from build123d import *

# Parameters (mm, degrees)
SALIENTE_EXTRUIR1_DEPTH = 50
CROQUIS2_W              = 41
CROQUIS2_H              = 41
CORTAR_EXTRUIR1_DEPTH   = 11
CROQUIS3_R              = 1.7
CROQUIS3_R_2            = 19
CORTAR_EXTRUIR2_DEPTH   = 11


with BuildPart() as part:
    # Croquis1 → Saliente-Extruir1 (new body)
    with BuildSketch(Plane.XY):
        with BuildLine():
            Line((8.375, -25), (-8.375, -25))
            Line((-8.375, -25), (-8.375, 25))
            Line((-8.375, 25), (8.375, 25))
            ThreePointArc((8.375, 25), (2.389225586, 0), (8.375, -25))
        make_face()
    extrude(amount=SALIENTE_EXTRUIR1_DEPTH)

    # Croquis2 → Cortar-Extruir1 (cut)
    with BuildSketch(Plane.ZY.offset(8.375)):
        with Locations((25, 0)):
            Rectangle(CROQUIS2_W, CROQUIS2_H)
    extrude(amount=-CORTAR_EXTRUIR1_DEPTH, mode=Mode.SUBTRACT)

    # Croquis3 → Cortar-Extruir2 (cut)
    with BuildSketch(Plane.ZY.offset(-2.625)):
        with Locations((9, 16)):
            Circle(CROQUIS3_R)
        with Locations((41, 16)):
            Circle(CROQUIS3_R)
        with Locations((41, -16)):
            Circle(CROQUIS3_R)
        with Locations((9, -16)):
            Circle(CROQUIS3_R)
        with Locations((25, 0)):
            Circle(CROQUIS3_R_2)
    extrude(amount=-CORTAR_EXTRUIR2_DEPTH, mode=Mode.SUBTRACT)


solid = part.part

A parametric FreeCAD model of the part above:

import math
import FreeCAD as App
import Part
import Sketcher
from FreeCAD import Vector

doc = App.newDocument("Part")
body = doc.addObject("PartDesign::Body", "Body")

sketch1 = body.newObject("Sketcher::SketchObject", "Sketch")
sketch1.AttachmentSupport = (doc.getObject("XY_Plane"), [""])
sketch1.MapMode = "FlatFace"
sketch1.addGeometry(Part.LineSegment(Vector(-8.375, -25, 0), Vector(8.375, -25, 0)), False)
sketch1.addGeometry(Part.ArcOfCircle(Part.Circle(Vector(57.589226, 0, 0), Vector(0, 0, 1), 55.2), math.radians(153.070195), math.radians(206.929805)), False)
sketch1.addGeometry(Part.LineSegment(Vector(8.375, 25, 0), Vector(-8.375, 25, 0)), False)
sketch1.addGeometry(Part.LineSegment(Vector(-8.375, 25, 0), Vector(-8.375, -25, 0)), False)
sketch1.addConstraint(Sketcher.Constraint("Coincident", 0, 2, 1, 2))
sketch1.addConstraint(Sketcher.Constraint("Coincident", 1, 1, 2, 1))
sketch1.addConstraint(Sketcher.Constraint("Coincident", 2, 2, 3, 1))
sketch1.addConstraint(Sketcher.Constraint("Coincident", 3, 2, 0, 1))
sketch1.addConstraint(Sketcher.Constraint("Horizontal", 0))
sketch1.addConstraint(Sketcher.Constraint("Horizontal", 2))
sketch1.addConstraint(Sketcher.Constraint("Vertical", 3))
sketch1.addConstraint(Sketcher.Constraint("Symmetric", 0, 2, 2, 2, -1, 1))
sketch1.addConstraint(Sketcher.Constraint("PointOnObject", 1, 3, -1))
sketch1.addConstraint(Sketcher.Constraint("Radius", 1, 55.2))
sketch1.addConstraint(Sketcher.Constraint("DistanceY", 3, 2, 3, 1, 50.0))
sketch1.addConstraint(Sketcher.Constraint("DistanceX", 0, 1, 0, 2, 16.75))
pad1 = body.newObject("PartDesign::Pad", "Pad")
pad1.Profile = sketch1
pad1.Length = 50

sketch2 = body.newObject("Sketcher::SketchObject", "Sketch001")
sketch2.AttachmentSupport = (doc.getObject("YZ_Plane"), [""])
sketch2.MapMode = "FlatFace"
sketch2.AttachmentOffset = App.Placement(Vector(0, 0, -8.375), App.Rotation())
sketch2.addGeometry(Part.LineSegment(Vector(20.5, 4.5, 0), Vector(-20.5, 4.5, 0)), False)
sketch2.addGeometry(Part.LineSegment(Vector(-20.5, 4.5, 0), Vector(-20.5, 45.5, 0)), False)
sketch2.addGeometry(Part.LineSegment(Vector(-20.5, 45.5, 0), Vector(20.5, 45.5, 0)), False)
sketch2.addGeometry(Part.LineSegment(Vector(20.5, 45.5, 0), Vector(20.5, 4.5, 0)), False)
sketch2.addConstraint(Sketcher.Constraint("Coincident", 0, 2, 1, 1))
sketch2.addConstraint(Sketcher.Constraint("Coincident", 1, 2, 2, 1))
sketch2.addConstraint(Sketcher.Constraint("Coincident", 2, 2, 3, 1))
sketch2.addConstraint(Sketcher.Constraint("Coincident", 3, 2, 0, 1))
sketch2.addConstraint(Sketcher.Constraint("Horizontal", 0))
sketch2.addConstraint(Sketcher.Constraint("Vertical", 1))
sketch2.addConstraint(Sketcher.Constraint("Horizontal", 2))
sketch2.addConstraint(Sketcher.Constraint("Vertical", 3))
sketch2.addConstraint(Sketcher.Constraint("Equal", 2, 1))
sketch2.addConstraint(Sketcher.Constraint("DistanceX", 0, 2, 0, 1, 41.0))
sketch2.addConstraint(Sketcher.Constraint("DistanceX", 0, 2, -1, 1, 20.5))
sketch2.addConstraint(Sketcher.Constraint("DistanceY", -1, 1, 0, 2, 4.5))
pocket1 = body.newObject("PartDesign::Pocket", "Pocket")
pocket1.Profile = sketch2
pocket1.Length = 11
pocket1.Reversed = True

sketch3 = body.newObject("Sketcher::SketchObject", "Sketch002")
sketch3.AttachmentSupport = (doc.getObject("YZ_Plane"), [""])
sketch3.MapMode = "FlatFace"
sketch3.AttachmentOffset = App.Placement(Vector(0, 0, 2.625), App.Rotation())
sketch3.addGeometry(Part.Circle(Vector(16, 9, 0), Vector(0, 0, 1), 1.7), False)
sketch3.addGeometry(Part.Circle(Vector(16, 41, 0), Vector(0, 0, 1), 1.7), False)
sketch3.addGeometry(Part.Circle(Vector(-16, 41, 0), Vector(0, 0, 1), 1.7), False)
sketch3.addGeometry(Part.Circle(Vector(-16, 9, 0), Vector(0, 0, 1), 1.7), False)
sketch3.addGeometry(Part.Circle(Vector(0, 25, 0), Vector(0, 0, 1), 19), False)
sketch3.addConstraint(Sketcher.Constraint("Equal", 0, 1))
sketch3.addConstraint(Sketcher.Constraint("Equal", 1, 2))
sketch3.addConstraint(Sketcher.Constraint("Equal", 2, 3))
sketch3.addConstraint(Sketcher.Constraint("Symmetric", 1, 3, 2, 3, -2))
sketch3.addConstraint(Sketcher.Constraint("Symmetric", 0, 3, 3, 3, -2))
sketch3.addConstraint(Sketcher.Constraint("PointOnObject", 4, 3, -2))
sketch3.addConstraint(Sketcher.Constraint("Vertical", 0, 3, 1, 3))
sketch3.addConstraint(Sketcher.Constraint("Diameter", 4, 38.0))
sketch3.addConstraint(Sketcher.Constraint("Diameter", 0, 3.4))
sketch3.addConstraint(Sketcher.Constraint("DistanceX", -1, 1, 0, 3, 16.0))
sketch3.addConstraint(Sketcher.Constraint("DistanceY", -1, 1, 0, 3, 9.0))
sketch3.addConstraint(Sketcher.Constraint("DistanceY", -1, 1, 1, 3, 41.0))
sketch3.addConstraint(Sketcher.Constraint("DistanceY", -1, 1, 4, 3, 25.0))
pocket2 = body.newObject("PartDesign::Pocket", "Pocket001")
pocket2.Profile = sketch3
pocket2.Length = 11
pocket2.Reversed = True

doc.recompute()
